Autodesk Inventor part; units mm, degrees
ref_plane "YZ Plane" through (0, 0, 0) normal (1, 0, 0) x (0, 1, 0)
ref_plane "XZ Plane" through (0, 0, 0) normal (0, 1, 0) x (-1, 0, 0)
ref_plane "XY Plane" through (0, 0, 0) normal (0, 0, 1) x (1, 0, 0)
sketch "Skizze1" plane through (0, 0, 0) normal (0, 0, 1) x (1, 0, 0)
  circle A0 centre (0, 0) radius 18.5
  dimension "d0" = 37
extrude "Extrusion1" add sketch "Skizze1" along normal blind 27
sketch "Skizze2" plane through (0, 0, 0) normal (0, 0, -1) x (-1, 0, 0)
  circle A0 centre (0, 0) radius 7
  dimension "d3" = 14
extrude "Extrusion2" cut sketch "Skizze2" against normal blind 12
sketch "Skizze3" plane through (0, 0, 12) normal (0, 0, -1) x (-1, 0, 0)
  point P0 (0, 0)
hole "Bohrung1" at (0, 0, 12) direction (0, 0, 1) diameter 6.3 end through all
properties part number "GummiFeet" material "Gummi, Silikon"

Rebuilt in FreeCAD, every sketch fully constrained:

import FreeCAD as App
import Part
import Sketcher

doc = App.newDocument("Part")
body = doc.addObject("PartDesign::Body", "Body")

# Sketch on XY plane
sketch1 = doc.addObject("Sketcher::SketchObject", "Sketch")
body.addObject(sketch1)
sketch1.AttachmentSupport = (doc.XY_Plane, [""])
sketch1.MapMode = "FlatFace"
sketch1.addGeometry(Part.Circle(App.Vector(0, 0, 0), App.Vector(0, 0, 1), 18), False)
sketch1.addConstraint(Sketcher.Constraint("Coincident", 0, 3, -1, 1))
sketch1.addConstraint(Sketcher.Constraint("Diameter", 0, 37.0))
pad1 = doc.addObject("PartDesign::Pad", "Pad")
body.addObject(pad1)
pad1.Profile = sketch1
pad1.Length = 27

# Sketch on XY plane
sketch2 = doc.addObject("Sketcher::SketchObject", "Sketch001")
body.addObject(sketch2)
sketch2.AttachmentSupport = (doc.XY_Plane, [""])
sketch2.MapMode = "FlatFace"
sketch2.addGeometry(Part.Circle(App.Vector(0, 0, 0), App.Vector(0, 0, 1), 7), False)
sketch2.addConstraint(Sketcher.Constraint("Coincident", 0, 3, -1, 1))
sketch2.addConstraint(Sketcher.Constraint("Diameter", 0, 14.0))
pocket1 = doc.addObject("PartDesign::Pocket", "Pocket")
body.addObject(pocket1)
pocket1.Profile = sketch2
pocket1.Length = 12
pocket1.Reversed = True

# Sketch on XY plane
sketch3 = doc.addObject("Sketcher::SketchObject", "Sketch002")
body.addObject(sketch3)
sketch3.AttachmentSupport = (doc.XY_Plane, [""])
sketch3.MapMode = "FlatFace"
sketch3.AttachmentOffset = App.Placement(App.Vector(0, 0, 12), App.Rotation())
sketch3.addGeometry(Part.Circle(App.Vector(0, 0, 0), App.Vector(0, 0, 1), 3.1), False)
sketch3.addConstraint(Sketcher.Constraint("Coincident", 0, 3, -1, 1))
sketch3.addConstraint(Sketcher.Constraint("Diameter", 0, 6.3))
doc.recompute()
hole = doc.addObject("PartDesign::Hole", "Hole")
body.addObject(hole)
hole.Profile = sketch3
hole.ThreadType = "None"
hole.Diameter = 6.3
hole.DepthType = "ThroughAll"
hole.Reversed = True

doc.recompute()
